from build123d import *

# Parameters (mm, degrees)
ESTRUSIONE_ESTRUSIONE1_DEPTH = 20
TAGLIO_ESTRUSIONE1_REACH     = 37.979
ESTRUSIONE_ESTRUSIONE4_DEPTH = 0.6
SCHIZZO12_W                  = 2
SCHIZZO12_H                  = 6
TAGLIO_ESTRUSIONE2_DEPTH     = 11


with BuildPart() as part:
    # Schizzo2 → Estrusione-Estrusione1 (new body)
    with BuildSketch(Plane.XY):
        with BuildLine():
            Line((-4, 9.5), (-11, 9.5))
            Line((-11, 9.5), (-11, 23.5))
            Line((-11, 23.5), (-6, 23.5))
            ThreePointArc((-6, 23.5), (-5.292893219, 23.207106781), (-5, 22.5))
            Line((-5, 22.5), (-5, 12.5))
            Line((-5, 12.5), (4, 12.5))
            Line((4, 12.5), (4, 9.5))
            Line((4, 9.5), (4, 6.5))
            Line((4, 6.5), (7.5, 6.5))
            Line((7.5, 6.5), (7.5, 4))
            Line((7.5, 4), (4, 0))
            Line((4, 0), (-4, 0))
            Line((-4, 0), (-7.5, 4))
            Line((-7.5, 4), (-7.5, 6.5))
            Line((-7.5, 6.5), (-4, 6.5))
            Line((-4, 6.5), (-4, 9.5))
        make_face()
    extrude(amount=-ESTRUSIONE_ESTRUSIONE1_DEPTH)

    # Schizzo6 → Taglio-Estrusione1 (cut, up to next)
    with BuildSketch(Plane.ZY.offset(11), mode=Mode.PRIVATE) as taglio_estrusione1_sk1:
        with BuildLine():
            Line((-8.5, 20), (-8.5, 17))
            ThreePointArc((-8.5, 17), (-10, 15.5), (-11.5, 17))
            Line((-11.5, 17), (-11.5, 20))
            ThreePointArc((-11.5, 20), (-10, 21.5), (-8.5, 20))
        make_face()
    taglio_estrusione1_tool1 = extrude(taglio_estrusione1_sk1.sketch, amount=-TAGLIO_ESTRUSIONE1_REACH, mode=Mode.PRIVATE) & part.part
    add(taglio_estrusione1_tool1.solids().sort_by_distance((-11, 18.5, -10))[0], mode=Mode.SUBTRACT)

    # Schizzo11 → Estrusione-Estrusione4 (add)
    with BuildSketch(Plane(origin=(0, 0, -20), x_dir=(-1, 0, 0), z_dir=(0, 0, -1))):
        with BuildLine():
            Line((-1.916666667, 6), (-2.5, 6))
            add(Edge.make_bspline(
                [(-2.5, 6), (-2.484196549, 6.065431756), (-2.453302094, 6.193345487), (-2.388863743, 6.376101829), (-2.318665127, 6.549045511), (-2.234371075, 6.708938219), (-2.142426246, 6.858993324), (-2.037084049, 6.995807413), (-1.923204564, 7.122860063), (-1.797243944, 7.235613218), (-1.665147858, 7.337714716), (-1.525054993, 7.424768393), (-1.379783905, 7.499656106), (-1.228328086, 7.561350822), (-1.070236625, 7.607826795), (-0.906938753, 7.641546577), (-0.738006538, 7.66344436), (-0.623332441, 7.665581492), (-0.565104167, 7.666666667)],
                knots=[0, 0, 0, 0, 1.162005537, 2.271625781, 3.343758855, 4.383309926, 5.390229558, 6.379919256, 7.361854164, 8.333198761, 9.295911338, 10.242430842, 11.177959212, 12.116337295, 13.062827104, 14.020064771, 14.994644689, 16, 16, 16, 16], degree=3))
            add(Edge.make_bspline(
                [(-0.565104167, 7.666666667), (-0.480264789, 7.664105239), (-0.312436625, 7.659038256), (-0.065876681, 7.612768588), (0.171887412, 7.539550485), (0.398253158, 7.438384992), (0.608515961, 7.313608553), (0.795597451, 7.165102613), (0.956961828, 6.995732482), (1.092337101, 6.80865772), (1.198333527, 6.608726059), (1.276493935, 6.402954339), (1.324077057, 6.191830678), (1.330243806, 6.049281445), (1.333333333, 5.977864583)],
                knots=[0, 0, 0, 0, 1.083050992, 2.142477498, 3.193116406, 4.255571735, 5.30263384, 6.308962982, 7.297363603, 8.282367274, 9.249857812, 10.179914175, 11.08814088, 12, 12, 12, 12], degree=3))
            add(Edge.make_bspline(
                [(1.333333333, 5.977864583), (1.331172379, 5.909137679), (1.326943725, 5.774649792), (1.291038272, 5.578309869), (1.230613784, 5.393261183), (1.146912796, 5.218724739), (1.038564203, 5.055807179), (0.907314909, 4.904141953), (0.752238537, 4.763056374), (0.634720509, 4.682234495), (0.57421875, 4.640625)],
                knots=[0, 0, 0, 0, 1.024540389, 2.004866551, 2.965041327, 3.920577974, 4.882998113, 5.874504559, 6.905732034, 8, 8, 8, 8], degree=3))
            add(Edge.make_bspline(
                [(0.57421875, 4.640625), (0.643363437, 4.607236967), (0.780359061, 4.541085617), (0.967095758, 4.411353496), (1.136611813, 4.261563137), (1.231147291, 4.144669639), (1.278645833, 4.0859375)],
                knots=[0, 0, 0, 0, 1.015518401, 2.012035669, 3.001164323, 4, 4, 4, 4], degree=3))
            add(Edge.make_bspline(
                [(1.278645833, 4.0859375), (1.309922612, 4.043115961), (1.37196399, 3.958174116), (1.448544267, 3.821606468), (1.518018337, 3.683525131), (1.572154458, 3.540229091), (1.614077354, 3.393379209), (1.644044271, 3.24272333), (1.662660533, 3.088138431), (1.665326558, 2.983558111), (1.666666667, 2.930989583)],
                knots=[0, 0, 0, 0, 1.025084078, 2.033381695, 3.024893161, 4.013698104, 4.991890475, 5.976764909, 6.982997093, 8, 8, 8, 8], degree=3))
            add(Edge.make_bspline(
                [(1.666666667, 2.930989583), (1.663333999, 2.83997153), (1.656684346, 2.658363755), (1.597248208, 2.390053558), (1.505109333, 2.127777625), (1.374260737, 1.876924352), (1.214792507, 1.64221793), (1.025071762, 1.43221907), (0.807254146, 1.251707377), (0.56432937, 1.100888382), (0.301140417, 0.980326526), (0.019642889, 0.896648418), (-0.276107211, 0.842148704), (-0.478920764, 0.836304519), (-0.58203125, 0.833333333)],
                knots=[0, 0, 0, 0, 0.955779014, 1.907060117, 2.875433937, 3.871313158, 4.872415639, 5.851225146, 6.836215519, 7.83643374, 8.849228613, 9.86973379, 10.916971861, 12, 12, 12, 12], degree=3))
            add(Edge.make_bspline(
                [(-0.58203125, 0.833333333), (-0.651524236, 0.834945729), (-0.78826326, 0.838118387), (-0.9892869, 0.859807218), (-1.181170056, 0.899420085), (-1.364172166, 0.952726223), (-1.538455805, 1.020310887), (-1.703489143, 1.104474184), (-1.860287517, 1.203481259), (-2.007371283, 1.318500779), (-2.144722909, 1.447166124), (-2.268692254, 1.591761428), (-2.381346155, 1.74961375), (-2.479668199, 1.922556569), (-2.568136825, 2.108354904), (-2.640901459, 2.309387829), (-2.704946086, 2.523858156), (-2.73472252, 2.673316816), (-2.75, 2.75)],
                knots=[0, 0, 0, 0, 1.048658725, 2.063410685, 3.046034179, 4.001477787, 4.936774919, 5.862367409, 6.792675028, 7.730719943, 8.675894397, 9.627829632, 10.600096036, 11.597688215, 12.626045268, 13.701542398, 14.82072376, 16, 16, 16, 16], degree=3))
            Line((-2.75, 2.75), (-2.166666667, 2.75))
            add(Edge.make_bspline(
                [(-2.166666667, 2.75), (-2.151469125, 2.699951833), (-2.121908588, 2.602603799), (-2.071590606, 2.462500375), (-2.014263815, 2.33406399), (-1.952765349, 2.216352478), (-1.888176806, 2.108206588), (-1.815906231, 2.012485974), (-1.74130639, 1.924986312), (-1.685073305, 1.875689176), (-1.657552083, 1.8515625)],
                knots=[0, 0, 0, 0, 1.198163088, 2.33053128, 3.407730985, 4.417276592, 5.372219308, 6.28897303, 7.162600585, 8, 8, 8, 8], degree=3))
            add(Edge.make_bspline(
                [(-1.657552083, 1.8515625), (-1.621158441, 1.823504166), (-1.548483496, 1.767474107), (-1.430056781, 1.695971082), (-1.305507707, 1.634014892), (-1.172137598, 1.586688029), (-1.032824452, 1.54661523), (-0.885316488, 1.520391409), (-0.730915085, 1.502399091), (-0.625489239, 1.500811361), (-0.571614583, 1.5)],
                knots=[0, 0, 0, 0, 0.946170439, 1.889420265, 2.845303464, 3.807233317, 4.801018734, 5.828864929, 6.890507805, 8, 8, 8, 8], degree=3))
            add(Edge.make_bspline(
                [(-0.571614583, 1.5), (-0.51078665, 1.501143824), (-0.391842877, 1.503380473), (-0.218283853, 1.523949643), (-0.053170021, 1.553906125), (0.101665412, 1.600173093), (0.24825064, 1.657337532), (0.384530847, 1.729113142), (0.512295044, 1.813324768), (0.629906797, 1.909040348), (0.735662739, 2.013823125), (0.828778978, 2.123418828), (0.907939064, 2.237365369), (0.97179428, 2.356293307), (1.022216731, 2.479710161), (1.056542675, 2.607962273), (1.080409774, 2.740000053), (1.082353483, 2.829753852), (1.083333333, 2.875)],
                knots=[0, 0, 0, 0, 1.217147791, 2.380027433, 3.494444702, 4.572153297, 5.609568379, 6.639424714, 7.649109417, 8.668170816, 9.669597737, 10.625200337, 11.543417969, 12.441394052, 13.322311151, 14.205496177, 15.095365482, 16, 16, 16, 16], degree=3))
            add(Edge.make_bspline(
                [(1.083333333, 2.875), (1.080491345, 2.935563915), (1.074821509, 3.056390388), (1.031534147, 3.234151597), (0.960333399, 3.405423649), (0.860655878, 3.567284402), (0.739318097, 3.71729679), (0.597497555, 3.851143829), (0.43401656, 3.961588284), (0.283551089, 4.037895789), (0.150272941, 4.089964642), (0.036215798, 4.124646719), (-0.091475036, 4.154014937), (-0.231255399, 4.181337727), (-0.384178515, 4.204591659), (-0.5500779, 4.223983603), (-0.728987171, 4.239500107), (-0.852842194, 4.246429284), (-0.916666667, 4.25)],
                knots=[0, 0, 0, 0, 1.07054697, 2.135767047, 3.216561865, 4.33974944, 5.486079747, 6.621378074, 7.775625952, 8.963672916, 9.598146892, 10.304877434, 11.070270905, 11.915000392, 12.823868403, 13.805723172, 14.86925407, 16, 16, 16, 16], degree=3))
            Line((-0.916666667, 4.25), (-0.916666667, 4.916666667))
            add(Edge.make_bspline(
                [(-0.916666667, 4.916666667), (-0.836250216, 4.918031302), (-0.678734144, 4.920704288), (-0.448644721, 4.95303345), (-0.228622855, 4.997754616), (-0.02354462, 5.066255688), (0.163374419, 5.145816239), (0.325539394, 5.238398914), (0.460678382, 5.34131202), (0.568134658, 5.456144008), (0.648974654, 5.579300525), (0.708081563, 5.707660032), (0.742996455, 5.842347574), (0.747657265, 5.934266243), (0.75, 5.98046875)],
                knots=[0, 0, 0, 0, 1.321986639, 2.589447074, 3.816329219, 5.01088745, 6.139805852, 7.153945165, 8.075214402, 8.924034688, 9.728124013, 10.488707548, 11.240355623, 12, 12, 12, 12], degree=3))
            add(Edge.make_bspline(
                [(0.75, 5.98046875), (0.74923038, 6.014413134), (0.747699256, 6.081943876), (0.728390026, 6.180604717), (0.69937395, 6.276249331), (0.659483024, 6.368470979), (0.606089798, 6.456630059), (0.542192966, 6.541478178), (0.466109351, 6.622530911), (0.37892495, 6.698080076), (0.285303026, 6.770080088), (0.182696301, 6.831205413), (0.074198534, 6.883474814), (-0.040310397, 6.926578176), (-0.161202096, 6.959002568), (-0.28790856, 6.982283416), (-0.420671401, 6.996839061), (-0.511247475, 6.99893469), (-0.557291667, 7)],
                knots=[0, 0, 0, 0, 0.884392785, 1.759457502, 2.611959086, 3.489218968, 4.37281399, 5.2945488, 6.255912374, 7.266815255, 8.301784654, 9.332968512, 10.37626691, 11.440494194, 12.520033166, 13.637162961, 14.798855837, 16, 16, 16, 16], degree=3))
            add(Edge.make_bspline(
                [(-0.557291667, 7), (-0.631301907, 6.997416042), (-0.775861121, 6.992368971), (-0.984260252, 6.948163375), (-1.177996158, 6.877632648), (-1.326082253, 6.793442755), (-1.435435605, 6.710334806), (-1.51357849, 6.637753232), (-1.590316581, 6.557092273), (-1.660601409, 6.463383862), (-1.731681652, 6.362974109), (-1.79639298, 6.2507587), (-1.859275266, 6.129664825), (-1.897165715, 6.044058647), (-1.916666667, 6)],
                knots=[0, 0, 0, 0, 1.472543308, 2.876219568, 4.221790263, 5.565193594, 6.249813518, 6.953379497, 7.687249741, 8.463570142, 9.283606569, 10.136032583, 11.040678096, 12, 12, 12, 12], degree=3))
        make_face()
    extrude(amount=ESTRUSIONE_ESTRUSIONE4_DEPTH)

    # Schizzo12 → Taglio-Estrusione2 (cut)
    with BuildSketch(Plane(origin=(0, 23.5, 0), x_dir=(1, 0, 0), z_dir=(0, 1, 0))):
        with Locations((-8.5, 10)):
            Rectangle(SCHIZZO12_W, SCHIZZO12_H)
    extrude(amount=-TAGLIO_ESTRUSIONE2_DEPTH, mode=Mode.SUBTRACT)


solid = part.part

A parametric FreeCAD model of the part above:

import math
import FreeCAD as App
import Part
import Sketcher
from FreeCAD import Vector
Q = App.Units.Quantity

doc = App.newDocument("Part")
body = doc.addObject("PartDesign::Body", "Body")

# Sketch on XY plane
sketch1 = doc.addObject("Sketcher::SketchObject", "Sketch")
body.addObject(sketch1)
sketch1.AttachmentSupport = (doc.XY_Plane, [""])
sketch1.MapMode = "FlatFace"
sketch1.addGeometry([
    Part.LineSegment(Vector(-11, 9.5, 0), Vector(-4, 9.5, 0)),  # 0
    Part.LineSegment(Vector(-4, 9.5, 0), Vector(-4, 6.5, 0)),  # 1
    Part.LineSegment(Vector(-4, 6.5, 0), Vector(-7.5, 6.5, 0)),  # 2
    Part.LineSegment(Vector(-7.5, 6.5, 0), Vector(-7.5, 4, 0)),  # 3
    Part.LineSegment(Vector(-7.5, 4, 0), Vector(-4, 0, 0)),  # 4
    Part.LineSegment(Vector(-4, 0, 0), Vector(4, 0, 0)),  # 5
    Part.LineSegment(Vector(4, 0, 0), Vector(7.5, 4, 0)),  # 6
    Part.LineSegment(Vector(7.5, 4, 0), Vector(7.5, 6.5, 0)),  # 7
    Part.LineSegment(Vector(7.5, 6.5, 0), Vector(4, 6.5, 0)),  # 8
    Part.LineSegment(Vector(4, 6.5, 0), Vector(4, 12.5, 0)),  # 9
    Part.LineSegment(Vector(4, 12.5, 0), Vector(-5, 12.5, 0)),  # 10
    Part.LineSegment(Vector(-5, 12.5, 0), Vector(-5, 22.5, 0)),  # 11
    Part.ArcOfCircle(Part.Circle(Vector(-6, 22.5, 0), Vector(0, 0, 1), 1), math.radians(0), math.radians(90)),  # 12
    Part.LineSegment(Vector(-6, 23.5, 0), Vector(-11, 23.5, 0)),  # 13
    Part.LineSegment(Vector(-11, 23.5, 0), Vector(-11, 9.5, 0)),  # 14
], False)
sketch1.addConstraint([
    Sketcher.Constraint("Coincident", 0, 2, 1, 1),
    Sketcher.Constraint("Coincident", 1, 2, 2, 1),
    Sketcher.Constraint("Coincident", 2, 2, 3, 1),
    Sketcher.Constraint("Coincident", 3, 2, 4, 1),
    Sketcher.Constraint("Coincident", 4, 2, 5, 1),
    Sketcher.Constraint("Coincident", 5, 2, 6, 1),
    Sketcher.Constraint("Coincident", 6, 2, 7, 1),
    Sketcher.Constraint("Coincident", 7, 2, 8, 1),
    Sketcher.Constraint("Coincident", 8, 2, 9, 1),
    Sketcher.Constraint("Coincident", 9, 2, 10, 1),
    Sketcher.Constraint("Coincident", 10, 2, 11, 1),
    Sketcher.Constraint("Tangent", 11, 2, 12, 1),
    Sketcher.Constraint("Tangent", 12, 2, 13, 1),
    Sketcher.Constraint("Coincident", 13, 2, 14, 1),
    Sketcher.Constraint("Coincident", 14, 2, 0, 1),
    Sketcher.Constraint("Horizontal", 0),
    Sketcher.Constraint("Vertical", 1),
    Sketcher.Constraint("Horizontal", 2),
    Sketcher.Constraint("Vertical", 3),
    Sketcher.Constraint("Horizontal", 5),
    Sketcher.Constraint("Vertical", 7),
    Sketcher.Constraint("Horizontal", 8),
    Sketcher.Constraint("Vertical", 9),
    Sketcher.Constraint("Horizontal", 10),
    Sketcher.Constraint("Vertical", 11),
    Sketcher.Constraint("Horizontal", 13),
    Sketcher.Constraint("Vertical", 14),
    Sketcher.Constraint("Symmetric", 4, 2, 5, 2, -1, 1),
    Sketcher.Constraint("Symmetric", 3, 2, 6, 2, -2),
    Sketcher.Constraint("Symmetric", 1, 2, 8, 2, -2),
    Sketcher.Constraint("Vertical", 1, 2, 4, 2),
    Sketcher.Constraint("Radius", 12, Q("1 mm")),
    Sketcher.Constraint("DistanceX", 0, 1, 0, 2, Q("7 mm")),
    Sketcher.Constraint("DistanceX", 5, 1, 5, 2, Q("8 mm")),
    Sketcher.Constraint("DistanceX", 10, 2, 10, 1, Q("9 mm")),
    Sketcher.Constraint("DistanceY", 1, 2, 1, 1, Q("3 mm")),
    Sketcher.Constraint("DistanceY", 9, 1, 9, 2, Q("6 mm")),
    Sketcher.Constraint("DistanceY", 11, 1, 11, 2, Q("10 mm")),
    Sketcher.Constraint("DistanceX", 2, 2, 2, 1, Q("3.5 mm")),
    Sketcher.Constraint("DistanceY", 3, 2, 3, 1, Q("2.5 mm")),
    Sketcher.Constraint("DistanceY", -1, 1, 3, 2, Q("4 mm")),
])
pad1 = doc.addObject("PartDesign::Pad", "Pad")
body.addObject(pad1)
pad1.Profile = sketch1
pad1.Length = 20
pad1.Reversed = True

# Sketch on YZ plane
sketch2 = doc.addObject("Sketcher::SketchObject", "Sketch001")
body.addObject(sketch2)
sketch2.AttachmentSupport = (doc.YZ_Plane, [""])
sketch2.MapMode = "FlatFace"
sketch2.AttachmentOffset = App.Placement(Vector(0, 0, -11), App.Rotation())
sketch2.addGeometry([
    Part.LineSegment(Vector(17, -8.5, 0), Vector(20, -8.5, 0)),
    Part.ArcOfCircle(Part.Circle(Vector(20, -10, 0), Vector(0, 0, 1), 1.5), math.radians(-90), math.radians(90)),
    Part.LineSegment(Vector(20, -11.5, 0), Vector(17, -11.5, 0)),
    Part.ArcOfCircle(Part.Circle(Vector(17, -10, 0), Vector(0, 0, 1), 1.5), math.radians(90), math.radians(270)),
], False)
sketch2.addConstraint([
    Sketcher.Constraint("Tangent", 0, 2, 1, 2),
    Sketcher.Constraint("Tangent", 1, 1, 2, 1),
    Sketcher.Constraint("Tangent", 2, 2, 3, 2),
    Sketcher.Constraint("Tangent", 3, 1, 0, 1),
    Sketcher.Constraint("Horizontal", 0),
    Sketcher.Constraint("Horizontal", 2),
    Sketcher.Constraint("Radius", 1, Q("1.5 mm")),
    Sketcher.Constraint("DistanceX", 0, 1, 0, 2, Q("3 mm")),
    Sketcher.Constraint("DistanceX", -1, 1, 1, 3, Q("20 mm")),
    Sketcher.Constraint("DistanceY", 1, 3, -1, 1, Q("10 mm")),
])
pocket1 = doc.addObject("PartDesign::Pocket", "Pocket")
body.addObject(pocket1)
pocket1.Profile = sketch2
pocket1.Type = "UpToFirst"
pocket1.Reversed = True

# Sketch on XY plane
sketch3 = doc.addObject("Sketcher::SketchObject", "Sketch002")
body.addObject(sketch3)
sketch3.AttachmentSupport = (doc.XY_Plane, [""])
sketch3.MapMode = "FlatFace"
sketch3.AttachmentOffset = App.Placement(Vector(0, 0, -20), App.Rotation())
sketch3.addGeometry([
    Part.LineSegment(Vector(2.5, 6, 0), Vector(1.916667, 6, 0)),  # 0
    Part.BSplineCurve([Vector(0.557292, 7, 0), Vector(0.631302, 6.997416, 0), Vector(0.775861, 6.992369, 0), Vector(0.98426, 6.948163, 0), Vector(1.177996, 6.877633, 0), Vector(1.326082, 6.793443, 0), Vector(1.435436, 6.710335, 0), Vector(1.513578, 6.637753, 0), Vector(1.590317, 6.557092, 0), Vector(1.660601, 6.463384, 0), Vector(1.731682, 6.362974, 0), Vector(1.796393, 6.250759, 0), Vector(1.859275, 6.129665, 0), Vector(1.897166, 6.044059, 0), Vector(1.916667, 6, 0)], [4, 1, 1, 1, 1, 1, 1, 1, 1, 1, 1, 1, 4], [0, 1.472543308, 2.876219568, 4.221790263, 5.565193594, 6.249813518, 6.953379497, 7.687249741, 8.463570142, 9.283606569, 10.136032583, 11.040678096, 12], False, 3, [1, 1, 1, 1, 1, 1, 1, 1, 1, 1, 1, 1, 1, 1, 1], False),  # 1
    Part.BSplineCurve([Vector(-0.75, 5.980469, 0), Vector(-0.74923, 6.014413, 0), Vector(-0.747699, 6.081944, 0), Vector(-0.72839, 6.180605, 0), Vector(-0.699374, 6.276249, 0), Vector(-0.659483, 6.368471, 0), Vector(-0.60609, 6.45663, 0), Vector(-0.542193, 6.541478, 0), Vector(-0.466109, 6.622531, 0), Vector(-0.378925, 6.69808, 0), Vector(-0.285303, 6.77008, 0), Vector(-0.182696, 6.831205, 0), Vector(-0.074199, 6.883475, 0), Vector(0.04031, 6.926578, 0), Vector(0.161202, 6.959003, 0), Vector(0.287909, 6.982283, 0), Vector(0.420671, 6.996839, 0), Vector(0.511247, 6.998935, 0), Vector(0.557292, 7, 0)], [4, 1, 1, 1, 1, 1, 1, 1, 1, 1, 1, 1, 1, 1, 1, 1, 4], [0, 0.884392785, 1.759457502, 2.611959086, 3.489218968, 4.37281399, 5.2945488, 6.255912374, 7.266815255, 8.301784654, 9.332968512, 10.37626691, 11.440494194, 12.520033166, 13.637162961, 14.798855837, 16], False, 3, [1, 1, 1, 1, 1, 1, 1, 1, 1, 1, 1, 1, 1, 1, 1, 1, 1, 1, 1], False),  # 2
    Part.BSplineCurve([Vector(0.916667, 4.916667, 0), Vector(0.83625, 4.918031, 0), Vector(0.678734, 4.920704, 0), Vector(0.448645, 4.953033, 0), Vector(0.228623, 4.997755, 0), Vector(0.023545, 5.066256, 0), Vector(-0.163374, 5.145816, 0), Vector(-0.325539, 5.238399, 0), Vector(-0.460678, 5.341312, 0), Vector(-0.568135, 5.456144, 0), Vector(-0.648975, 5.579301, 0), Vector(-0.708082, 5.70766, 0), Vector(-0.742996, 5.842348, 0), Vector(-0.747657, 5.934266, 0), Vector(-0.75, 5.980469, 0)], [4, 1, 1, 1, 1, 1, 1, 1, 1, 1, 1, 1, 4], [0, 1.321986639, 2.589447074, 3.816329219, 5.01088745, 6.139805852, 7.153945165, 8.075214402, 8.924034688, 9.728124013, 10.488707548, 11.240355623, 12], False, 3, [1, 1, 1, 1, 1, 1, 1, 1, 1, 1, 1, 1, 1, 1, 1], False),  # 3
    Part.LineSegment(Vector(0.916667, 4.916667, 0), Vector(0.916667, 4.25, 0)),  # 4
    Part.BSplineCurve([Vector(-1.083333, 2.875, 0), Vector(-1.080491, 2.935564, 0), Vector(-1.074822, 3.05639, 0), Vector(-1.031534, 3.234152, 0), Vector(-0.960333, 3.405424, 0), Vector(-0.860656, 3.567284, 0), Vector(-0.739318, 3.717297, 0), Vector(-0.597498, 3.851144, 0), Vector(-0.434017, 3.961588, 0), Vector(-0.283551, 4.037896, 0), Vector(-0.150273, 4.089965, 0), Vector(-0.036216, 4.124647, 0), Vector(0.091475, 4.154015, 0), Vector(0.231255, 4.181338, 0), Vector(0.384179, 4.204592, 0), Vector(0.550078, 4.223984, 0), Vector(0.728987, 4.2395, 0), Vector(0.852842, 4.246429, 0), Vector(0.916667, 4.25, 0)], [4, 1, 1, 1, 1, 1, 1, 1, 1, 1, 1, 1, 1, 1, 1, 1, 4], [0, 1.07054697, 2.135767047, 3.216561865, 4.33974944, 5.486079747, 6.621378074, 7.775625952, 8.963672916, 9.598146892, 10.304877434, 11.070270905, 11.915000392, 12.823868403, 13.805723172, 14.86925407, 16], False, 3, [1, 1, 1, 1, 1, 1, 1, 1, 1, 1, 1, 1, 1, 1, 1, 1, 1, 1, 1], False),  # 5
    Part.BSplineCurve([Vector(0.571615, 1.5, 0), Vector(0.510787, 1.501144, 0), Vector(0.391843, 1.50338, 0), Vector(0.218284, 1.52395, 0), Vector(0.05317, 1.553906, 0), Vector(-0.101665, 1.600173, 0), Vector(-0.248251, 1.657338, 0), Vector(-0.384531, 1.729113, 0), Vector(-0.512295, 1.813325, 0), Vector(-0.629907, 1.90904, 0), Vector(-0.735663, 2.013823, 0), Vector(-0.828779, 2.123419, 0), Vector(-0.907939, 2.237365, 0), Vector(-0.971794, 2.356293, 0), Vector(-1.022217, 2.47971, 0), Vector(-1.056543, 2.607962, 0), Vector(-1.08041, 2.74, 0), Vector(-1.082353, 2.829754, 0), Vector(-1.083333, 2.875, 0)], [4, 1, 1, 1, 1, 1, 1, 1, 1, 1, 1, 1, 1, 1, 1, 1, 4], [0, 1.217147791, 2.380027433, 3.494444702, 4.572153297, 5.609568379, 6.639424714, 7.649109417, 8.668170816, 9.669597737, 10.625200337, 11.543417969, 12.441394052, 13.322311151, 14.205496177, 15.095365482, 16], False, 3, [1, 1, 1, 1, 1, 1, 1, 1, 1, 1, 1, 1, 1, 1, 1, 1, 1, 1, 1], False),  # 6
    Part.BSplineCurve([Vector(1.657552, 1.851562, 0), Vector(1.621158, 1.823504, 0), Vector(1.548483, 1.767474, 0), Vector(1.430057, 1.695971, 0), Vector(1.305508, 1.634015, 0), Vector(1.172138, 1.586688, 0), Vector(1.032824, 1.546615, 0), Vector(0.885316, 1.520391, 0), Vector(0.730915, 1.502399, 0), Vector(0.625489, 1.500811, 0), Vector(0.571615, 1.5, 0)], [4, 1, 1, 1, 1, 1, 1, 1, 4], [0, 0.946170439, 1.889420265, 2.845303464, 3.807233317, 4.801018734, 5.828864929, 6.890507805, 8], False, 3, [1, 1, 1, 1, 1, 1, 1, 1, 1, 1, 1], False),  # 7
    Part.BSplineCurve([Vector(2.166667, 2.75, 0), Vector(2.151469, 2.699952, 0), Vector(2.121909, 2.602604, 0), Vector(2.071591, 2.4625, 0), Vector(2.014264, 2.334064, 0), Vector(1.952765, 2.216352, 0), Vector(1.888177, 2.108207, 0), Vector(1.815906, 2.012486, 0), Vector(1.741306, 1.924986, 0), Vector(1.685073, 1.875689, 0), Vector(1.657552, 1.851562, 0)], [4, 1, 1, 1, 1, 1, 1, 1, 4], [0, 1.198163088, 2.33053128, 3.407730985, 4.417276592, 5.372219308, 6.28897303, 7.162600585, 8], False, 3, [1, 1, 1, 1, 1, 1, 1, 1, 1, 1, 1], False),  # 8
    Part.LineSegment(Vector(2.166667, 2.75, 0), Vector(2.75, 2.75, 0)),  # 9
    Part.BSplineCurve([Vector(0.582031, 0.833333, 0), Vector(0.651524, 0.834946, 0), Vector(0.788263, 0.838118, 0), Vector(0.989287, 0.859807, 0), Vector(1.18117, 0.89942, 0), Vector(1.364172, 0.952726, 0), Vector(1.538456, 1.020311, 0), Vector(1.703489, 1.104474, 0), Vector(1.860288, 1.203481, 0), Vector(2.007371, 1.318501, 0), Vector(2.144723, 1.447166, 0), Vector(2.268692, 1.591761, 0), Vector(2.381346, 1.749614, 0), Vector(2.479668, 1.922557, 0), Vector(2.568137, 2.108355, 0), Vector(2.640901, 2.309388, 0), Vector(2.704946, 2.523858, 0), Vector(2.734723, 2.673317, 0), Vector(2.75, 2.75, 0)], [4, 1, 1, 1, 1, 1, 1, 1, 1, 1, 1, 1, 1, 1, 1, 1, 4], [0, 1.048658725, 2.063410685, 3.046034179, 4.001477787, 4.936774919, 5.862367409, 6.792675028, 7.730719943, 8.675894397, 9.627829632, 10.600096036, 11.597688215, 12.626045268, 13.701542398, 14.82072376, 16], False, 3, [1, 1, 1, 1, 1, 1, 1, 1, 1, 1, 1, 1, 1, 1, 1, 1, 1, 1, 1], False),  # 10
    Part.BSplineCurve([Vector(-1.666667, 2.93099, 0), Vector(-1.663334, 2.839972, 0), Vector(-1.656684, 2.658364, 0), Vector(-1.597248, 2.390054, 0), Vector(-1.505109, 2.127778, 0), Vector(-1.374261, 1.876924, 0), Vector(-1.214793, 1.642218, 0), Vector(-1.025072, 1.432219, 0), Vector(-0.807254, 1.251707, 0), Vector(-0.564329, 1.100888, 0), Vector(-0.30114, 0.980327, 0), Vector(-0.019643, 0.896648, 0), Vector(0.276107, 0.842149, 0), Vector(0.478921, 0.836305, 0), Vector(0.582031, 0.833333, 0)], [4, 1, 1, 1, 1, 1, 1, 1, 1, 1, 1, 1, 4], [0, 0.955779014, 1.907060117, 2.875433937, 3.871313158, 4.872415639, 5.851225146, 6.836215519, 7.83643374, 8.849228613, 9.86973379, 10.916971861, 12], False, 3, [1, 1, 1, 1, 1, 1, 1, 1, 1, 1, 1, 1, 1, 1, 1], False),  # 11
    Part.BSplineCurve([Vector(-1.278646, 4.085938, 0), Vector(-1.309923, 4.043116, 0), Vector(-1.371964, 3.958174, 0), Vector(-1.448544, 3.821606, 0), Vector(-1.518018, 3.683525, 0), Vector(-1.572154, 3.540229, 0), Vector(-1.614077, 3.393379, 0), Vector(-1.644044, 3.242723, 0), Vector(-1.662661, 3.088138, 0), Vector(-1.665327, 2.983558, 0), Vector(-1.666667, 2.93099, 0)], [4, 1, 1, 1, 1, 1, 1, 1, 4], [0, 1.025084078, 2.033381695, 3.024893161, 4.013698104, 4.991890475, 5.976764909, 6.982997093, 8], False, 3, [1, 1, 1, 1, 1, 1, 1, 1, 1, 1, 1], False),  # 12
    Part.BSplineCurve([Vector(-0.574219, 4.640625, 0), Vector(-0.643363, 4.607237, 0), Vector(-0.780359, 4.541086, 0), Vector(-0.967096, 4.411353, 0), Vector(-1.136612, 4.261563, 0), Vector(-1.231147, 4.14467, 0), Vector(-1.278646, 4.085938, 0)], [4, 1, 1, 1, 4], [0, 1.015518401, 2.012035669, 3.001164323, 4], False, 3, [1, 1, 1, 1, 1, 1, 1], False),  # 13
    Part.BSplineCurve([Vector(-1.333333, 5.977865, 0), Vector(-1.331172, 5.909138, 0), Vector(-1.326944, 5.77465, 0), Vector(-1.291038, 5.57831, 0), Vector(-1.230614, 5.393261, 0), Vector(-1.146913, 5.218725, 0), Vector(-1.038564, 5.055807, 0), Vector(-0.907315, 4.904142, 0), Vector(-0.752239, 4.763056, 0), Vector(-0.634721, 4.682234, 0), Vector(-0.574219, 4.640625, 0)], [4, 1, 1, 1, 1, 1, 1, 1, 4], [0, 1.024540389, 2.004866551, 2.965041327, 3.920577974, 4.882998113, 5.874504559, 6.905732034, 8], False, 3, [1, 1, 1, 1, 1, 1, 1, 1, 1, 1, 1], False),  # 14
    Part.BSplineCurve([Vector(0.565104, 7.666667, 0), Vector(0.480265, 7.664105, 0), Vector(0.312437, 7.659038, 0), Vector(0.065877, 7.612769, 0), Vector(-0.171887, 7.53955, 0), Vector(-0.398253, 7.438385, 0), Vector(-0.608516, 7.313609, 0), Vector(-0.795597, 7.165103, 0), Vector(-0.956962, 6.995732, 0), Vector(-1.092337, 6.808658, 0), Vector(-1.198334, 6.608726, 0), Vector(-1.276494, 6.402954, 0), Vector(-1.324077, 6.191831, 0), Vector(-1.330244, 6.049281, 0), Vector(-1.333333, 5.977865, 0)], [4, 1, 1, 1, 1, 1, 1, 1, 1, 1, 1, 1, 4], [0, 1.083050992, 2.142477498, 3.193116406, 4.255571735, 5.30263384, 6.308962982, 7.297363603, 8.282367274, 9.249857812, 10.179914175, 11.08814088, 12], False, 3, [1, 1, 1, 1, 1, 1, 1, 1, 1, 1, 1, 1, 1, 1, 1], False),  # 15
    Part.BSplineCurve([Vector(2.5, 6, 0), Vector(2.484197, 6.065432, 0), Vector(2.453302, 6.193345, 0), Vector(2.388864, 6.376102, 0), Vector(2.318665, 6.549046, 0), Vector(2.234371, 6.708938, 0), Vector(2.142426, 6.858993, 0), Vector(2.037084, 6.995807, 0), Vector(1.923205, 7.12286, 0), Vector(1.797244, 7.235613, 0), Vector(1.665148, 7.337715, 0), Vector(1.525055, 7.424768, 0), Vector(1.379784, 7.499656, 0), Vector(1.228328, 7.561351, 0), Vector(1.070237, 7.607827, 0), Vector(0.906939, 7.641547, 0), Vector(0.738007, 7.663444, 0), Vector(0.623332, 7.665581, 0), Vector(0.565104, 7.666667, 0)], [4, 1, 1, 1, 1, 1, 1, 1, 1, 1, 1, 1, 1, 1, 1, 1, 4], [0, 1.162005537, 2.271625781, 3.343758855, 4.383309926, 5.390229558, 6.379919256, 7.361854164, 8.333198761, 9.295911338, 10.242430842, 11.177959212, 12.116337295, 13.062827104, 14.020064771, 14.994644689, 16], False, 3, [1, 1, 1, 1, 1, 1, 1, 1, 1, 1, 1, 1, 1, 1, 1, 1, 1, 1, 1], False),  # 16
], False)
sketch3.addConstraint([
    Sketcher.Constraint("Block", 1),
    Sketcher.Constraint("Block", 2),
    Sketcher.Constraint("Block", 3),
    Sketcher.Constraint("Block", 5),
    Sketcher.Constraint("Block", 6),
    Sketcher.Constraint("Block", 7),
    Sketcher.Constraint("Block", 8),
    Sketcher.Constraint("Block", 10),
    Sketcher.Constraint("Block", 11),
    Sketcher.Constraint("Block", 12),
    Sketcher.Constraint("Block", 13),
    Sketcher.Constraint("Block", 14),
    Sketcher.Constraint("Block", 15),
    Sketcher.Constraint("Block", 16),
    Sketcher.Constraint("Coincident", 0, 2, 1, 2),
    Sketcher.Constraint("Coincident", 3, 1, 4, 1),
    Sketcher.Constraint("Coincident", 4, 2, 5, 2),
    Sketcher.Constraint("Coincident", 8, 1, 9, 1),
    Sketcher.Constraint("Coincident", 9, 2, 10, 2),
    Sketcher.Constraint("Coincident", 16, 1, 0, 1),
])
pad2 = doc.addObject("PartDesign::Pad", "Pad001")
body.addObject(pad2)
pad2.Profile = sketch3
pad2.Length = 0.6
pad2.Reversed = True

# Sketch on XZ plane
sketch4 = doc.addObject("Sketcher::SketchObject", "Sketch003")
body.addObject(sketch4)
sketch4.AttachmentSupport = (doc.XZ_Plane, [""])
sketch4.MapMode = "FlatFace"
sketch4.AttachmentOffset = App.Placement(Vector(0, 0, -23.5), App.Rotation())
sketch4.addGeometry([
    Part.LineSegment(Vector(-9.5, -13, 0), Vector(-9.5, -7, 0)),
    Part.LineSegment(Vector(-9.5, -7, 0), Vector(-7.5, -7, 0)),
    Part.LineSegment(Vector(-7.5, -7, 0), Vector(-7.5, -13, 0)),
    Part.LineSegment(Vector(-7.5, -13, 0), Vector(-9.5, -13, 0)),
], False)
sketch4.addConstraint([
    Sketcher.Constraint("Coincident", 0, 2, 1, 1),
    Sketcher.Constraint("Coincident", 1, 2, 2, 1),
    Sketcher.Constraint("Coincident", 2, 2, 3, 1),
    Sketcher.Constraint("Coincident", 3, 2, 0, 1),
    Sketcher.Constraint("Vertical", 0),
    Sketcher.Constraint("Horizontal", 1),
    Sketcher.Constraint("Vertical", 2),
    Sketcher.Constraint("Horizontal", 3),
    Sketcher.Constraint("DistanceX", 1, 1, 1, 2, Q("2 mm")),
    Sketcher.Constraint("DistanceY", 0, 1, 0, 2, Q("6 mm")),
    Sketcher.Constraint("DistanceY", 0, 2, -1, 1, Q("7 mm")),
    Sketcher.Constraint("DistanceX", 0, 2, -1, 1, Q("9.5 mm")),
])
pocket2 = doc.addObject("PartDesign::Pocket", "Pocket001")
body.addObject(pocket2)
pocket2.Profile = sketch4
pocket2.Length = 11
pocket2.Reversed = True

doc.recompute()
